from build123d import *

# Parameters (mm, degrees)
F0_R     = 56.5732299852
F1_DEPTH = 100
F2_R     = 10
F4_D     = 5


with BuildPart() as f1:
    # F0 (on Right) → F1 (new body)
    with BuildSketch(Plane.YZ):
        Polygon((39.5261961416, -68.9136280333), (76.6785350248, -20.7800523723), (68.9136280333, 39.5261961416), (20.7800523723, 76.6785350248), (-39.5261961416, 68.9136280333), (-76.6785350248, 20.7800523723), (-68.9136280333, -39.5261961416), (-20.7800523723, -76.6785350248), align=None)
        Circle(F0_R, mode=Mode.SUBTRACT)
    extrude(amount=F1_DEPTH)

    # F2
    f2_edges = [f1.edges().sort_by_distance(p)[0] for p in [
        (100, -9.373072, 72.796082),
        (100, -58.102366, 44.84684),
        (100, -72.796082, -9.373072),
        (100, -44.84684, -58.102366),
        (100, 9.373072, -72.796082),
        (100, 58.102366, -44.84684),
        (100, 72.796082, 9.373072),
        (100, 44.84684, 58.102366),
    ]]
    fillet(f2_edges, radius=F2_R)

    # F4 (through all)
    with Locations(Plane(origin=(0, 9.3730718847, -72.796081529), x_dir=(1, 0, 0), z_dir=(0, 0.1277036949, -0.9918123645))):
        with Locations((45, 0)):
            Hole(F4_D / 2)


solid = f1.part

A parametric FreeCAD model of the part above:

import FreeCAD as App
import Part
import Sketcher


def edges_at(feature, points):
    """Names of the edges that pass closest to the given points."""
    edges = feature.Shape.Edges
    near = lambda p: min(range(len(edges)), key=lambda i: edges[i].distToShape(Part.Vertex(*p))[0])
    return sorted({f"Edge{near(p) + 1}" for p in points})


def add_polygon(sketch, points):
    """Adds a closed chain of lines whose ends are joined by coincident constraints."""
    first, n = sketch.GeometryCount, len(points)
    for a, b in zip(points, points[1:] + points[:1]):
        sketch.addGeometry(Part.LineSegment(App.Vector(*a, 0), App.Vector(*b, 0)), False)
    for i in range(n):
        sketch.addConstraint(Sketcher.Constraint("Coincident", first + i, 2, first + (i + 1) % n, 1))

doc = App.newDocument("Part")
body = doc.addObject("PartDesign::Body", "Body")

# Sketch on YZ plane
sketch1 = body.newObject("Sketcher::SketchObject", "Sketch")
sketch1.AttachmentSupport = (doc.getObject("YZ_Plane"), [""])
sketch1.MapMode = "FlatFace"
add_polygon(sketch1, [(39.526196, -68.913628), (76.678535, -20.780052), (68.913628, 39.526196), (20.780052, 76.678535), (-39.526196, 68.913628), (-76.678535, 20.780052), (-68.913628, -39.526196), (-20.780052, -76.678535)])  # lines 0-7
sketch1.addGeometry(Part.Circle(App.Vector(0, 0, 0), App.Vector(0, 0, 1), 56.57323), False)  # 8
sketch1.addConstraint(Sketcher.Constraint("Coincident", 8, 3, -1, 1))
sketch1.addConstraint(Sketcher.Constraint("Diameter", 8, 113.14646))
sketch1.addConstraint(Sketcher.Constraint("Distance", 0, 60.80409))
sketch1.addConstraint(Sketcher.Constraint("Distance", 1, 60.80409))
sketch1.addConstraint(Sketcher.Constraint("Distance", 2, 60.80409))
sketch1.addConstraint(Sketcher.Constraint("Distance", 3, 60.80409))
sketch1.addConstraint(Sketcher.Constraint("Distance", 4, 60.80409))
sketch1.addConstraint(Sketcher.Constraint("Distance", 5, 60.80409))
sketch1.addConstraint(Sketcher.Constraint("Distance", 6, 60.80409))
sketch1.addConstraint(Sketcher.Constraint("Distance", 7, 60.80409))
sketch1.addConstraint(Sketcher.Constraint("DistanceX", -1, 1, 1, 2, 68.913628))
sketch1.addConstraint(Sketcher.Constraint("DistanceY", -1, 1, 3, 2, 68.913628))
sketch1.addConstraint(Sketcher.Constraint("DistanceX", 5, 2, -1, 1, 68.913628))
sketch1.addConstraint(Sketcher.Constraint("DistanceY", 7, 2, -1, 1, 68.913628))
sketch1.addConstraint(Sketcher.Constraint("DistanceY", 0, 2, 1, 2, 60.306249))
sketch1.addConstraint(Sketcher.Constraint("DistanceY", 1, 2, 2, 2, 37.152339))
sketch1.addConstraint(Sketcher.Constraint("DistanceX", 3, 2, 2, 2, 60.306249))
sketch1.addConstraint(Sketcher.Constraint("DistanceX", 4, 2, 3, 2, 37.152339))
pad1 = body.newObject("PartDesign::Pad", "Pad")
pad1.Profile = sketch1
pad1.Length = 100
doc.recompute()

fillet = body.newObject("PartDesign::Fillet", "Fillet")
fillet.Base = (pad1, edges_at(pad1, [
    (100, -9.373, 72.796),
    (100, -58.102, 44.847),
    (100, -72.796, -9.373),
    (100, -44.847, -58.102),
    (100, 9.373, -72.796),
    (100, 58.102, -44.847),
    (100, 72.796, 9.373),
    (100, 44.847, 58.102),
]))
fillet.Radius = 10

# Sketch on an angled plane
sketch2 = body.newObject("Sketcher::SketchObject", "Sketch001")
sketch2.Placement = App.Placement(App.Vector(0, 9.373072, -72.796082), App.Rotation(App.Vector(1, 0, 0), App.Vector(0, -0.991812364, -0.127703695), App.Vector(0, 0.127703695, -0.991812364), "ZXY"))
sketch2.addGeometry(Part.Circle(App.Vector(45, 0, 0), App.Vector(0, 0, 1), 2.5), False)
sketch2.addConstraint(Sketcher.Constraint("PointOnObject", 0, 3, -1))
sketch2.addConstraint(Sketcher.Constraint("Diameter", 0, 5.0))
sketch2.addConstraint(Sketcher.Constraint("DistanceX", -1, 1, 0, 3, 45.0))
doc.recompute()
hole = body.newObject("PartDesign::Hole", "Hole")
hole.Profile = sketch2
hole.ThreadType = "None"
hole.Diameter = 5
hole.DepthType = "ThroughAll"

doc.recompute()
